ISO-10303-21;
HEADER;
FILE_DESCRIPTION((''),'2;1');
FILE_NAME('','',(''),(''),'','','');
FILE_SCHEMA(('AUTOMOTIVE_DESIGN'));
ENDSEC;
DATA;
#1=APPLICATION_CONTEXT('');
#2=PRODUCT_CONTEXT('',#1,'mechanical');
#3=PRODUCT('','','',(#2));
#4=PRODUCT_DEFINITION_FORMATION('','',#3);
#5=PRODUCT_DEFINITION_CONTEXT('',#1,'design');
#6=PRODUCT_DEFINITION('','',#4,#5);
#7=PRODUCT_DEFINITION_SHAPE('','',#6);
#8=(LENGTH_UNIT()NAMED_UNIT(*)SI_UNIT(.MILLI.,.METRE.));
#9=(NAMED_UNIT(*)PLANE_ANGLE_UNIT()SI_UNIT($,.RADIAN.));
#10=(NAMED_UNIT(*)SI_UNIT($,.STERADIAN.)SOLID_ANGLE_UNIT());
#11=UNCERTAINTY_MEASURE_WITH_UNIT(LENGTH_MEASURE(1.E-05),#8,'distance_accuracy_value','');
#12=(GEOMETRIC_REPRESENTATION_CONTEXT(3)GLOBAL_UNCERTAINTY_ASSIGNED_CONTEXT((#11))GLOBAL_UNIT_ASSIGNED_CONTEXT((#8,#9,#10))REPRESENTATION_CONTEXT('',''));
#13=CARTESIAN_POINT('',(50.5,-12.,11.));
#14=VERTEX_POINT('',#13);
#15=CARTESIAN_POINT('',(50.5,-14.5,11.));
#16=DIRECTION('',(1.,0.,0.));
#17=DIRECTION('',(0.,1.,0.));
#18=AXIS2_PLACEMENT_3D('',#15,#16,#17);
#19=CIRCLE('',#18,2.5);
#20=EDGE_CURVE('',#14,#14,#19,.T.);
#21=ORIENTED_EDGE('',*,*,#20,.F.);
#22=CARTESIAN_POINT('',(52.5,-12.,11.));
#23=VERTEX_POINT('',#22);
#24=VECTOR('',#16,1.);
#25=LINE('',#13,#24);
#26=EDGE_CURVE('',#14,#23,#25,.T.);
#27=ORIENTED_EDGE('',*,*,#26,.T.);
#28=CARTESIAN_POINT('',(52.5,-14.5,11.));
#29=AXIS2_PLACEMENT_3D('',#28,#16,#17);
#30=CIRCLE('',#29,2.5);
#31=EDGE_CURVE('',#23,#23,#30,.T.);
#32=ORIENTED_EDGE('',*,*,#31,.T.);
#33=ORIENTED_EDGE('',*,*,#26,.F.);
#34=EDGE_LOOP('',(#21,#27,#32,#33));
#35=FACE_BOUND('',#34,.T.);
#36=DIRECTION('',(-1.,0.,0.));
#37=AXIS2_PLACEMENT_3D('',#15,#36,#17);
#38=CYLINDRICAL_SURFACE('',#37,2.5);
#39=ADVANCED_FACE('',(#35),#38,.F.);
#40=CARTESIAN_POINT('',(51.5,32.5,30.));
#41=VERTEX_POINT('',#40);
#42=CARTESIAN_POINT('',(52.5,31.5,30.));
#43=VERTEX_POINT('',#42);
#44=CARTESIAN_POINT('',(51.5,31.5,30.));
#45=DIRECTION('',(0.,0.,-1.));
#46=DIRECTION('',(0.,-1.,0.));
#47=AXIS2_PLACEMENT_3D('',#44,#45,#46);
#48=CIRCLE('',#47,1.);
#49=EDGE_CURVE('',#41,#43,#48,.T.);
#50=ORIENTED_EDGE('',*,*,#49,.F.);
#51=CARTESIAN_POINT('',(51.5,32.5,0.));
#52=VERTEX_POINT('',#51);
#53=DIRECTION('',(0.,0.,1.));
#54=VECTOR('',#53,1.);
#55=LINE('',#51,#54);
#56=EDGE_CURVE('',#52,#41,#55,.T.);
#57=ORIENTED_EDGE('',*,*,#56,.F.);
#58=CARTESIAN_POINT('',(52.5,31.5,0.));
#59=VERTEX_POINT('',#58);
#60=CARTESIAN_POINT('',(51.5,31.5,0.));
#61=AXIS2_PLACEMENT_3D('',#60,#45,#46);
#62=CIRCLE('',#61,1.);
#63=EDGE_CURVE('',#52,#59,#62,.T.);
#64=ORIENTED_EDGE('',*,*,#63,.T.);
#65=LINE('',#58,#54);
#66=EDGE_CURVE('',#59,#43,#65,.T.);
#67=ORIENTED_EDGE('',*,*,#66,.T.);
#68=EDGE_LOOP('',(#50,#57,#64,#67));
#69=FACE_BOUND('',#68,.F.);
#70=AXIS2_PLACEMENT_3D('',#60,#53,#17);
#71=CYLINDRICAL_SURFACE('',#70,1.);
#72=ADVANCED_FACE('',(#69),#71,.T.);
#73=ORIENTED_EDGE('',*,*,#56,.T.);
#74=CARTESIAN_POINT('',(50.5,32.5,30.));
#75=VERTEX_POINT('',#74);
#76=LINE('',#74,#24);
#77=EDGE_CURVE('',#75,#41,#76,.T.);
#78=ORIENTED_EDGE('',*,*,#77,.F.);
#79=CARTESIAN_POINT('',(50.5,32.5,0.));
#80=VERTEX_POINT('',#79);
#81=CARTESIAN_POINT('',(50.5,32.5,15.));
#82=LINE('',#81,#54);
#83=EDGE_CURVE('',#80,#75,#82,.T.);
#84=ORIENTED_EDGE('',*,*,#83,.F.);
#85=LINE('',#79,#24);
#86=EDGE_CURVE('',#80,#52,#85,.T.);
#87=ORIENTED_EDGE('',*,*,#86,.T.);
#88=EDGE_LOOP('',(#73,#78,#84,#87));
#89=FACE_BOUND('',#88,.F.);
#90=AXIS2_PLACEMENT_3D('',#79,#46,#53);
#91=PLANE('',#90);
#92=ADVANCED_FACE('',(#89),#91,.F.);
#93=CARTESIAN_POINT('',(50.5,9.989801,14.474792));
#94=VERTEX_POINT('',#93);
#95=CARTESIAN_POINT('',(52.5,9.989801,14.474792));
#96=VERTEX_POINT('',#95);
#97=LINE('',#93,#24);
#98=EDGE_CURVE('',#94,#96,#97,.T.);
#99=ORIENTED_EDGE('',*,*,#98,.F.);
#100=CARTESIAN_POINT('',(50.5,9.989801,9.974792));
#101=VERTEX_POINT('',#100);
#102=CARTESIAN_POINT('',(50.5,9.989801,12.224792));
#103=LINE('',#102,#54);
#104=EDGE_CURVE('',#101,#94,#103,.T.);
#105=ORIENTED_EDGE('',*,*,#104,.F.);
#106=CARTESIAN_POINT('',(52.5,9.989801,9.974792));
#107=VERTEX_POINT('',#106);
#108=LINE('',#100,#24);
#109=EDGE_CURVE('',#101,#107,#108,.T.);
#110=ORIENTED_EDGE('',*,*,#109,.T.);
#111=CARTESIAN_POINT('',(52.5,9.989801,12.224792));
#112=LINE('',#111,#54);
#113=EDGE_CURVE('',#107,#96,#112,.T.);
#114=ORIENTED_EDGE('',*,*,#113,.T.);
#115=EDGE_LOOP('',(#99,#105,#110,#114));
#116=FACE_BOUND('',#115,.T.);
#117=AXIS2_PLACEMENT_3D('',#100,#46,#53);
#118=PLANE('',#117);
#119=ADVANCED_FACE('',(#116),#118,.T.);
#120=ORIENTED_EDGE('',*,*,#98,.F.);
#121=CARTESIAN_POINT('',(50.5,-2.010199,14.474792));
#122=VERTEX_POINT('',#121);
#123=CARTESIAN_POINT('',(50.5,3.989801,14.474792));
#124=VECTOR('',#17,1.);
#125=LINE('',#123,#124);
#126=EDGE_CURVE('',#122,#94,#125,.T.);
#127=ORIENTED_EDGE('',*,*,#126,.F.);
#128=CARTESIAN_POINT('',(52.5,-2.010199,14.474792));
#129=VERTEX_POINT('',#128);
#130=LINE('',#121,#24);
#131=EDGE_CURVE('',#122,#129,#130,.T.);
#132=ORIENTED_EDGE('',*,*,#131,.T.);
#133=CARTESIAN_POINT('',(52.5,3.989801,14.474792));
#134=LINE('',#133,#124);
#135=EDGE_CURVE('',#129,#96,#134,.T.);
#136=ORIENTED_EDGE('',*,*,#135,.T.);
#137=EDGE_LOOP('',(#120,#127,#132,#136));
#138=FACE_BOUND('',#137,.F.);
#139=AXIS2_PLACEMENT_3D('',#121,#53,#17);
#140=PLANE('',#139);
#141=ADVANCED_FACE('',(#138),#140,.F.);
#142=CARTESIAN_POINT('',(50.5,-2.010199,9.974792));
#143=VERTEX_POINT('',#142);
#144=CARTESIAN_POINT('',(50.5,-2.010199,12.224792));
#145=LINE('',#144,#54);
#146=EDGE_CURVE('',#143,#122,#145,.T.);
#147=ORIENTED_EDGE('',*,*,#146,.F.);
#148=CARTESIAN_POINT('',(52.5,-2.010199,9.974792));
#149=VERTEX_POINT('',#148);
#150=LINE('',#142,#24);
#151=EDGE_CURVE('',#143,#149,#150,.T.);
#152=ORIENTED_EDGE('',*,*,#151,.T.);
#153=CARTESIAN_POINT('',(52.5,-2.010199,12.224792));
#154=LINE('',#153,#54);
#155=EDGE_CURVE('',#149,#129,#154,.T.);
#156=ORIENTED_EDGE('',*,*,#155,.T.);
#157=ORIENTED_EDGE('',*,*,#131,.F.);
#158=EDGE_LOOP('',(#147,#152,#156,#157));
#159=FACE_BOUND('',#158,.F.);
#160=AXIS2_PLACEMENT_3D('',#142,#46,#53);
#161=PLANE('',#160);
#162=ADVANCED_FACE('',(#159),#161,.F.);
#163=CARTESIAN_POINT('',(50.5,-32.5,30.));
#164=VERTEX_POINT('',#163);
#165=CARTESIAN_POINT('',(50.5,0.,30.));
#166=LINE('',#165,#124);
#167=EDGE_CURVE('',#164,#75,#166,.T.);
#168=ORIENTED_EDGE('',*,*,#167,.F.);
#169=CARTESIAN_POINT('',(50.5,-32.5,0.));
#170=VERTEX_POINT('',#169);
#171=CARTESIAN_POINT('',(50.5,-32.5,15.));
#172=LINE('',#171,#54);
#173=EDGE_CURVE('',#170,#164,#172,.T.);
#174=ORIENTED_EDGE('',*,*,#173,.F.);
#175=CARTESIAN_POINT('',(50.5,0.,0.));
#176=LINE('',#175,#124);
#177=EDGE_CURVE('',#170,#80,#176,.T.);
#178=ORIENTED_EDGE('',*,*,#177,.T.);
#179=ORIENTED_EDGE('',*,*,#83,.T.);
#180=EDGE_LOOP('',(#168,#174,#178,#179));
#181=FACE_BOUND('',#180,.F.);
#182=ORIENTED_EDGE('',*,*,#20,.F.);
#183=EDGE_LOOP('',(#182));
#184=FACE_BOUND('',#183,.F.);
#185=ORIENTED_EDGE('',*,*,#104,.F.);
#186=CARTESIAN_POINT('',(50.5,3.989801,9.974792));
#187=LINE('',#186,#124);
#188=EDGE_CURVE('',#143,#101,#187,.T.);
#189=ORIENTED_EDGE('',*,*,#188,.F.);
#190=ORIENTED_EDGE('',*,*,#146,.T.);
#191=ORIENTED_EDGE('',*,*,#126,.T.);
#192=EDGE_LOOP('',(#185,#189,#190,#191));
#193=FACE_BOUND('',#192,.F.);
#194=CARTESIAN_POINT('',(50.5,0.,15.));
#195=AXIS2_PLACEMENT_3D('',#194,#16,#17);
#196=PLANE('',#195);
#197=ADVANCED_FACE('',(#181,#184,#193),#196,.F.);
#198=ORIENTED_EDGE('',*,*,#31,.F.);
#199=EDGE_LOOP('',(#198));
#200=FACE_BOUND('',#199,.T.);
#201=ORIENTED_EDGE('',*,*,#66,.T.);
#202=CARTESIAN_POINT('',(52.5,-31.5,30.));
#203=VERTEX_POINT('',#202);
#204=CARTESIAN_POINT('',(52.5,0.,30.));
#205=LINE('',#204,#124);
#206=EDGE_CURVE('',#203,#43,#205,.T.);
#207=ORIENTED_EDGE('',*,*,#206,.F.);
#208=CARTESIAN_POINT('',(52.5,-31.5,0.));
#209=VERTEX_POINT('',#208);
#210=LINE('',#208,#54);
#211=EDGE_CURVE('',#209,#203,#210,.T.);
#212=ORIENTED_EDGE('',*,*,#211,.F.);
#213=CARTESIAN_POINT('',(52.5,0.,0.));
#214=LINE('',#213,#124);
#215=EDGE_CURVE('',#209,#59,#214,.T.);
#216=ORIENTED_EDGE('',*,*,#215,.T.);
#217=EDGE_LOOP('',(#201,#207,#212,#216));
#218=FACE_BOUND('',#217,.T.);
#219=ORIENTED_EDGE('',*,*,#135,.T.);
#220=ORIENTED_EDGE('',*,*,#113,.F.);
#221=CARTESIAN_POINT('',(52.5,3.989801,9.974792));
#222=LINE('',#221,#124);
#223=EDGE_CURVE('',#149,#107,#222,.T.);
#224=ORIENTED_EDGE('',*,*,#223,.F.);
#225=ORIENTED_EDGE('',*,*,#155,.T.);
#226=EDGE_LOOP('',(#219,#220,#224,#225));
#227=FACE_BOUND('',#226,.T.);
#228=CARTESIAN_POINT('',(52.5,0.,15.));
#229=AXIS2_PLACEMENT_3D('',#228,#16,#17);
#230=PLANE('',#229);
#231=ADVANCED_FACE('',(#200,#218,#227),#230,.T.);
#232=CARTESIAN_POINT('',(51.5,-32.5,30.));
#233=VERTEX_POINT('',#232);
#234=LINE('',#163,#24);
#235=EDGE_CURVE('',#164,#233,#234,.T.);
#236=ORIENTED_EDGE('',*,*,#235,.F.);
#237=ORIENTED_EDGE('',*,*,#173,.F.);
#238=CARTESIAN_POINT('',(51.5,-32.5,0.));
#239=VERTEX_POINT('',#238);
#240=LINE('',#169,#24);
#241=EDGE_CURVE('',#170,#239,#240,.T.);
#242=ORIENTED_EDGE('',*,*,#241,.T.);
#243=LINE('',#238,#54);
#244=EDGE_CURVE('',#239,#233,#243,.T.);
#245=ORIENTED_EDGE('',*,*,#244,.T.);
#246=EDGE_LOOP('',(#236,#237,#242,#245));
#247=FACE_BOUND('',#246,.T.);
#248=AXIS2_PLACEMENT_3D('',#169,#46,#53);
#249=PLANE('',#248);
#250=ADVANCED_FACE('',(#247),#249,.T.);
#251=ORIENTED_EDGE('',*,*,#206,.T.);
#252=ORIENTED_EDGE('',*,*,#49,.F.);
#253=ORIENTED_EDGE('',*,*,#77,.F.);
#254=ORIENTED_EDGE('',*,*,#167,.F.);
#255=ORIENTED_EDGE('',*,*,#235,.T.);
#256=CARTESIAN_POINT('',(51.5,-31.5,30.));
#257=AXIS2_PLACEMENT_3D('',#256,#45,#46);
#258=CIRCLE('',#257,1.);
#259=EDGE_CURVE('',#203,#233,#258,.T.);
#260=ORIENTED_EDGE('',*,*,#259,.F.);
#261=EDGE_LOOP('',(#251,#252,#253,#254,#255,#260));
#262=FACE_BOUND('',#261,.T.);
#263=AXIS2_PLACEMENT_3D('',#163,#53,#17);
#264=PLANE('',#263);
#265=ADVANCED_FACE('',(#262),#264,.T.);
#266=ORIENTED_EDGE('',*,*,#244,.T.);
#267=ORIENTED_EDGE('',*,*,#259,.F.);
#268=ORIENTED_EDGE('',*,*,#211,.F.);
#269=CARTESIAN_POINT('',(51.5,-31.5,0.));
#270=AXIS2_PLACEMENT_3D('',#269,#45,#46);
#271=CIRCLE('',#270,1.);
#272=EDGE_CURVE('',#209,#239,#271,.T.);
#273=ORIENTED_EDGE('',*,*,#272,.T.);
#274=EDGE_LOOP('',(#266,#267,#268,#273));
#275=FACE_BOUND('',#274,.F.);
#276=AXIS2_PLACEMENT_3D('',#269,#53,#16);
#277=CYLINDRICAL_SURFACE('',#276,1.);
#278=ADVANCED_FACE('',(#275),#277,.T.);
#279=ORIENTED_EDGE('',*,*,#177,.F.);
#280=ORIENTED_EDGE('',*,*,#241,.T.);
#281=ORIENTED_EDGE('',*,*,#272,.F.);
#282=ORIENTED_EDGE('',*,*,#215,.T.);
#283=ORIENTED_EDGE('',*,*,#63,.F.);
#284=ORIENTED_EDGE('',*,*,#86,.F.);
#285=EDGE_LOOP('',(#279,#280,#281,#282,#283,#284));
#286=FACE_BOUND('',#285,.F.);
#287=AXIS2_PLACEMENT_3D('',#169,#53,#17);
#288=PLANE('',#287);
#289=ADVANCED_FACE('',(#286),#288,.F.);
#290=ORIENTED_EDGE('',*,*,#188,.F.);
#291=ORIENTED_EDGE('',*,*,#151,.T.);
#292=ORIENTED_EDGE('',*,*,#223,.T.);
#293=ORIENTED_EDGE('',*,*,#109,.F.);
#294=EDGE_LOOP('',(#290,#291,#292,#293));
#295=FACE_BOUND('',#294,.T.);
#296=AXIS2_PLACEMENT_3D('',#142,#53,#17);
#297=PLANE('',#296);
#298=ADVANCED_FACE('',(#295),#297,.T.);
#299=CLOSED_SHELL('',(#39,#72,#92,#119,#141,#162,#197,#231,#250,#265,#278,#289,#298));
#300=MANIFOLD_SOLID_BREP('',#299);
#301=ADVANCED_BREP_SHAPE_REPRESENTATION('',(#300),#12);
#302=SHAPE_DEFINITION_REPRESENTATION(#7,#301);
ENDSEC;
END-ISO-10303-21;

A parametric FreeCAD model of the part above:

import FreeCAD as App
import Part
import Sketcher
Q = App.Units.Quantity


def edges_at(feature, points):
    """Names of the edges that pass closest to the given points."""
    edges = feature.Shape.Edges
    near = lambda p: min(range(len(edges)), key=lambda i: edges[i].distToShape(Part.Vertex(*p))[0])
    return sorted({f"Edge{near(p) + 1}" for p in points})


def add_polygon(sketch, points):
    """Adds a closed chain of lines whose ends are joined by coincident constraints."""
    first, n = sketch.GeometryCount, len(points)
    for a, b in zip(points, points[1:] + points[:1]):
        sketch.addGeometry(Part.LineSegment(App.Vector(*a, 0), App.Vector(*b, 0)), False)
    for i in range(n):
        sketch.addConstraint(Sketcher.Constraint("Coincident", first + i, 2, first + (i + 1) % n, 1))

doc = App.newDocument("Part")
body = doc.addObject("PartDesign::Body", "Body")

sketch1 = doc.addObject("Sketcher::SketchObject", "Sketch")
body.addObject(sketch1)
sketch1.AttachmentSupport = (doc.YZ_Plane, [""])
sketch1.MapMode = "FlatFace"
add_polygon(sketch1, [(-32.5, 30), (-32.5, 0), (32.5, 0), (32.5, 30)])
sketch1.addGeometry(Part.Circle(App.Vector(-14.5, 11, 0), App.Vector(0, 0, 1), 2.5), False)
add_polygon(sketch1, [(10, 10), (-2, 10), (-2, 14.5), (10, 14.5)])
sketch1.addConstraint(Sketcher.Constraint("Vertical", 0))
sketch1.addConstraint(Sketcher.Constraint("Horizontal", 1))
sketch1.addConstraint(Sketcher.Constraint("Vertical", 2))
sketch1.addConstraint(Sketcher.Constraint("Horizontal", 3))
sketch1.addConstraint(Sketcher.Constraint("Horizontal", 5))
sketch1.addConstraint(Sketcher.Constraint("Vertical", 6))
sketch1.addConstraint(Sketcher.Constraint("Horizontal", 7))
sketch1.addConstraint(Sketcher.Constraint("Vertical", 8))
sketch1.addConstraint(Sketcher.Constraint("Symmetric", 0, 2, 1, 2, -1, 1))
sketch1.addConstraint(Sketcher.Constraint("Diameter", 4, Q("5 mm")))
sketch1.addConstraint(Sketcher.Constraint("DistanceX", 1, 1, 1, 2, Q("65 mm")))
sketch1.addConstraint(Sketcher.Constraint("DistanceX", 5, 2, 5, 1, Q("12 mm")))
sketch1.addConstraint(Sketcher.Constraint("DistanceY", 0, 2, 0, 1, Q("30 mm")))
sketch1.addConstraint(Sketcher.Constraint("DistanceY", 6, 1, 6, 2, Q("4.5 mm")))
sketch1.addConstraint(Sketcher.Constraint("DistanceY", -1, 1, 4, 3, Q("11 mm")))
sketch1.addConstraint(Sketcher.Constraint("DistanceX", 0, 2, 4, 3, Q("18 mm")))
sketch1.addConstraint(Sketcher.Constraint("DistanceX", 5, 2, -1, 1, Q("2.010199 mm")))
sketch1.addConstraint(Sketcher.Constraint("DistanceY", -1, 1, 5, 2, Q("9.974792 mm")))
pad1 = doc.addObject("PartDesign::Pad", "Pad")
body.addObject(pad1)
pad1.Profile = sketch1
pad1.Length = 2
doc.recompute()

fillet = doc.addObject("PartDesign::Fillet", "Fillet")
body.addObject(fillet)
fillet.Base = (pad1, edges_at(pad1, [(2, 32.5, 15)]))
fillet.Radius = 1
doc.recompute()

fillet2 = doc.addObject("PartDesign::Fillet", "Fillet001")
body.addObject(fillet2)
fillet2.Base = (fillet, edges_at(fillet, [(2, -32.5, 15)]))
fillet2.Radius = 1
body2 = doc.addObject("PartDesign::Body", "Body001")
doc.recompute()

body.Placement = App.Placement(App.Vector(50.5, 0, 0), App.Rotation(App.Vector(0, 0, 1), 0))
boolean = doc.addObject("PartDesign::Boolean", "Boolean")
body2.addObject(boolean)
boolean.Type = "Fuse"
boolean.addObjects([body])

doc.recompute()
